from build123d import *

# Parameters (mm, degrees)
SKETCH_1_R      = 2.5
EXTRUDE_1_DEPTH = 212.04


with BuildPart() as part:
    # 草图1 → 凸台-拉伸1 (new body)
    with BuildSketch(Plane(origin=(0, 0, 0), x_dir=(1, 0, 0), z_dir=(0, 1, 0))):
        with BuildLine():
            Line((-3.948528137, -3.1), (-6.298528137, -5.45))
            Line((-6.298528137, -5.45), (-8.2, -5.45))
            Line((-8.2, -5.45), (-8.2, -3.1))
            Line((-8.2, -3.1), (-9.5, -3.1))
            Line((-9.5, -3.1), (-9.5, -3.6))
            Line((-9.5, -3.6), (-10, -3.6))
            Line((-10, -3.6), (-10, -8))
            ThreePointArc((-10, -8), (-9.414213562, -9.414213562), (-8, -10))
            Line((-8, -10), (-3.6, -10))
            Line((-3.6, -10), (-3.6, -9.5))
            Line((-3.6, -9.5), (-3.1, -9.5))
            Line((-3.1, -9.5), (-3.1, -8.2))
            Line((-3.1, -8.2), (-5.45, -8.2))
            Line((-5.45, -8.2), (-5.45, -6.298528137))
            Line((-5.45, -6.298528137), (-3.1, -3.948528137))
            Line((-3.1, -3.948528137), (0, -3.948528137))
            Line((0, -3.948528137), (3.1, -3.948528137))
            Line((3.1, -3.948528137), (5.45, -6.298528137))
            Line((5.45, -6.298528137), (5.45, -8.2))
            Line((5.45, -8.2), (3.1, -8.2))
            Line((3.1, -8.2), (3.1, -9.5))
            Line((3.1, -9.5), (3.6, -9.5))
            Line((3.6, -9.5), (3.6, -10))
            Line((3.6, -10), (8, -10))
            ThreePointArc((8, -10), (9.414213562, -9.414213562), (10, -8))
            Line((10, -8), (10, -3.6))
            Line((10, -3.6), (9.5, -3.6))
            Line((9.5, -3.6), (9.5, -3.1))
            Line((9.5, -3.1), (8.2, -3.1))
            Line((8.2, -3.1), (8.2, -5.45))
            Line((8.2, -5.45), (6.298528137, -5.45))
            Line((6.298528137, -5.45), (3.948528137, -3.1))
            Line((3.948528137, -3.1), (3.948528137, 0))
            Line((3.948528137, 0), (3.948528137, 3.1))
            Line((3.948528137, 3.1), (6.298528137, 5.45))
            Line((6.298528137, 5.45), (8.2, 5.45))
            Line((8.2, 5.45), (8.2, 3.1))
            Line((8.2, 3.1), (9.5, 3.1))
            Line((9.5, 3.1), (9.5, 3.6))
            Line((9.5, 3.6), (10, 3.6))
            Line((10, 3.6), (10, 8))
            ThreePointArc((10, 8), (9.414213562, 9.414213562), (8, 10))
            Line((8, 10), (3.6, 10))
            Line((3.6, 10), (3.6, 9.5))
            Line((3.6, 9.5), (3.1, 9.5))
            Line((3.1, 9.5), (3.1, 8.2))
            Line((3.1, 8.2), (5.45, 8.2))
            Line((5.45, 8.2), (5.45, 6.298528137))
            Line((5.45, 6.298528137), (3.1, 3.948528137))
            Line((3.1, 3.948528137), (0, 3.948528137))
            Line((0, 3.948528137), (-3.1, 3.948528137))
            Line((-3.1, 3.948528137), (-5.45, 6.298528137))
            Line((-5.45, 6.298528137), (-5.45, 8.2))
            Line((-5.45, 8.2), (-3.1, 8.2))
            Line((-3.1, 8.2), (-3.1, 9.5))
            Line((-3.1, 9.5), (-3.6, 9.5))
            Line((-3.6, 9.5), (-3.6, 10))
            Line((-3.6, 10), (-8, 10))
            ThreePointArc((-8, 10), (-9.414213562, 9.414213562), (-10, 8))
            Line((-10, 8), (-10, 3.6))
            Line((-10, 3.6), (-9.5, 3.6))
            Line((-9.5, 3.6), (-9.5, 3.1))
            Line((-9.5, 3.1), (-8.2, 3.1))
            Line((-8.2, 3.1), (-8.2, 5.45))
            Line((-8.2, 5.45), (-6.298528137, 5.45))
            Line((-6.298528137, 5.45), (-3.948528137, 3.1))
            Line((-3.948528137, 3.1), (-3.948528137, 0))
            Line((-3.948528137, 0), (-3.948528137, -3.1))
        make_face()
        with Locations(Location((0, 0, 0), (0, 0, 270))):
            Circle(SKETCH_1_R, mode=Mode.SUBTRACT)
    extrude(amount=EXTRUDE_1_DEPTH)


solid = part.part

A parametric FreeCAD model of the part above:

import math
import FreeCAD as App
import Part
import Sketcher

V = App.Vector
Q = App.Units.Quantity

doc = App.newDocument("Part")
body = doc.addObject("PartDesign::Body", "Body")

sketch1 = doc.addObject("Sketcher::SketchObject", "Sketch")
body.addObject(sketch1)
sketch1.AttachmentSupport = (doc.XZ_Plane, [""])
sketch1.MapMode = "FlatFace"
sketch1.addGeometry([
    Part.LineSegment(V(-3.948528, 3.1, 0), V(-6.298528, 5.45, 0)),
    Part.LineSegment(V(-6.298528, 5.45, 0), V(-8.2, 5.45, 0)),
    Part.LineSegment(V(-8.2, 5.45, 0), V(-8.2, 3.1, 0)),
    Part.LineSegment(V(-8.2, 3.1, 0), V(-9.5, 3.1, 0)),
    Part.LineSegment(V(-9.5, 3.1, 0), V(-9.5, 3.6, 0)),
    Part.LineSegment(V(-9.5, 3.6, 0), V(-10, 3.6, 0)),
    Part.LineSegment(V(-10, 3.6, 0), V(-10, 8, 0)),
    Part.ArcOfCircle(Part.Circle(V(-8, 8, 0), V(0, 0, 1), 2), math.radians(90), math.radians(180)),
    Part.LineSegment(V(-8, 10, 0), V(-3.6, 10, 0)),
    Part.LineSegment(V(-3.6, 10, 0), V(-3.6, 9.5, 0)),
    Part.LineSegment(V(-3.6, 9.5, 0), V(-3.1, 9.5, 0)),
    Part.LineSegment(V(-3.1, 9.5, 0), V(-3.1, 8.2, 0)),
    Part.LineSegment(V(-3.1, 8.2, 0), V(-5.45, 8.2, 0)),
    Part.LineSegment(V(-5.45, 8.2, 0), V(-5.45, 6.298528, 0)),
    Part.LineSegment(V(-5.45, 6.298528, 0), V(-3.1, 3.948528, 0)),
    Part.LineSegment(V(-3.1, 3.948528, 0), V(3.1, 3.948528, 0)),
    Part.LineSegment(V(3.1, 3.948528, 0), V(5.45, 6.298528, 0)),
    Part.LineSegment(V(5.45, 6.298528, 0), V(5.45, 8.2, 0)),
    Part.LineSegment(V(5.45, 8.2, 0), V(3.1, 8.2, 0)),
    Part.LineSegment(V(3.1, 8.2, 0), V(3.1, 9.5, 0)),
    Part.LineSegment(V(3.1, 9.5, 0), V(3.6, 9.5, 0)),
    Part.LineSegment(V(3.6, 9.5, 0), V(3.6, 10, 0)),
    Part.LineSegment(V(3.6, 10, 0), V(8, 10, 0)),
    Part.ArcOfCircle(Part.Circle(V(8, 8, 0), V(0, 0, 1), 2), math.radians(0), math.radians(90)),
    Part.LineSegment(V(10, 8, 0), V(10, 3.6, 0)),
    Part.LineSegment(V(10, 3.6, 0), V(9.5, 3.6, 0)),
    Part.LineSegment(V(9.5, 3.6, 0), V(9.5, 3.1, 0)),
    Part.LineSegment(V(9.5, 3.1, 0), V(8.2, 3.1, 0)),
    Part.LineSegment(V(8.2, 3.1, 0), V(8.2, 5.45, 0)),
    Part.LineSegment(V(8.2, 5.45, 0), V(6.298528, 5.45, 0)),
    Part.LineSegment(V(6.298528, 5.45, 0), V(3.948528, 3.1, 0)),
    Part.LineSegment(V(3.948528, 3.1, 0), V(3.948528, -3.1, 0)),
    Part.LineSegment(V(3.948528, -3.1, 0), V(6.298528, -5.45, 0)),
    Part.LineSegment(V(6.298528, -5.45, 0), V(8.2, -5.45, 0)),
    Part.LineSegment(V(8.2, -5.45, 0), V(8.2, -3.1, 0)),
    Part.LineSegment(V(8.2, -3.1, 0), V(9.5, -3.1, 0)),
    Part.LineSegment(V(9.5, -3.1, 0), V(9.5, -3.6, 0)),
    Part.LineSegment(V(9.5, -3.6, 0), V(10, -3.6, 0)),
    Part.LineSegment(V(10, -3.6, 0), V(10, -8, 0)),
    Part.ArcOfCircle(Part.Circle(V(8, -8, 0), V(0, 0, 1), 2), math.radians(-90), math.radians(0)),
    Part.LineSegment(V(8, -10, 0), V(3.6, -10, 0)),
    Part.LineSegment(V(3.6, -10, 0), V(3.6, -9.5, 0)),
    Part.LineSegment(V(3.6, -9.5, 0), V(3.1, -9.5, 0)),
    Part.LineSegment(V(3.1, -9.5, 0), V(3.1, -8.2, 0)),
    Part.LineSegment(V(3.1, -8.2, 0), V(5.45, -8.2, 0)),
    Part.LineSegment(V(5.45, -8.2, 0), V(5.45, -6.298528, 0)),
    Part.LineSegment(V(5.45, -6.298528, 0), V(3.1, -3.948528, 0)),
    Part.LineSegment(V(3.1, -3.948528, 0), V(-3.1, -3.948528, 0)),
    Part.LineSegment(V(-3.1, -3.948528, 0), V(-5.45, -6.298528, 0)),
    Part.LineSegment(V(-5.45, -6.298528, 0), V(-5.45, -8.2, 0)),
    Part.LineSegment(V(-5.45, -8.2, 0), V(-3.1, -8.2, 0)),
    Part.LineSegment(V(-3.1, -8.2, 0), V(-3.1, -9.5, 0)),
    Part.LineSegment(V(-3.1, -9.5, 0), V(-3.6, -9.5, 0)),
    Part.LineSegment(V(-3.6, -9.5, 0), V(-3.6, -10, 0)),
    Part.LineSegment(V(-3.6, -10, 0), V(-8, -10, 0)),
    Part.ArcOfCircle(Part.Circle(V(-8, -8, 0), V(0, 0, 1), 2), math.radians(-180), math.radians(-90)),
    Part.LineSegment(V(-10, -8, 0), V(-10, -3.6, 0)),
    Part.LineSegment(V(-10, -3.6, 0), V(-9.5, -3.6, 0)),
    Part.LineSegment(V(-9.5, -3.6, 0), V(-9.5, -3.1, 0)),
    Part.LineSegment(V(-9.5, -3.1, 0), V(-8.2, -3.1, 0)),
    Part.LineSegment(V(-8.2, -3.1, 0), V(-8.2, -5.45, 0)),
    Part.LineSegment(V(-8.2, -5.45, 0), V(-6.298528, -5.45, 0)),
    Part.LineSegment(V(-6.298528, -5.45, 0), V(-3.948528, -3.1, 0)),
    Part.LineSegment(V(-3.948528, -3.1, 0), V(-3.948528, 3.1, 0)),
    Part.Circle(V(0, 0, 0), V(0, 0, 1), 2.5),
], False)
sketch1.addConstraint([
    Sketcher.Constraint("Coincident", 0, 2, 1, 1),
    Sketcher.Constraint("Coincident", 1, 2, 2, 1),
    Sketcher.Constraint("Coincident", 2, 2, 3, 1),
    Sketcher.Constraint("Coincident", 3, 2, 4, 1),
    Sketcher.Constraint("Coincident", 4, 2, 5, 1),
    Sketcher.Constraint("Coincident", 5, 2, 6, 1),
    Sketcher.Constraint("Tangent", 6, 2, 7, 2),
    Sketcher.Constraint("Tangent", 7, 1, 8, 1),
    Sketcher.Constraint("Coincident", 8, 2, 9, 1),
    Sketcher.Constraint("Coincident", 9, 2, 10, 1),
    Sketcher.Constraint("Coincident", 10, 2, 11, 1),
    Sketcher.Constraint("Coincident", 11, 2, 12, 1),
    Sketcher.Constraint("Coincident", 12, 2, 13, 1),
    Sketcher.Constraint("Coincident", 13, 2, 14, 1),
    Sketcher.Constraint("Coincident", 14, 2, 15, 1),
    Sketcher.Constraint("Coincident", 15, 2, 16, 1),
    Sketcher.Constraint("Coincident", 16, 2, 17, 1),
    Sketcher.Constraint("Coincident", 17, 2, 18, 1),
    Sketcher.Constraint("Coincident", 18, 2, 19, 1),
    Sketcher.Constraint("Coincident", 19, 2, 20, 1),
    Sketcher.Constraint("Coincident", 20, 2, 21, 1),
    Sketcher.Constraint("Coincident", 21, 2, 22, 1),
    Sketcher.Constraint("Tangent", 22, 2, 23, 2),
    Sketcher.Constraint("Tangent", 23, 1, 24, 1),
    Sketcher.Constraint("Coincident", 24, 2, 25, 1),
    Sketcher.Constraint("Coincident", 25, 2, 26, 1),
    Sketcher.Constraint("Coincident", 26, 2, 27, 1),
    Sketcher.Constraint("Coincident", 27, 2, 28, 1),
    Sketcher.Constraint("Coincident", 28, 2, 29, 1),
    Sketcher.Constraint("Coincident", 29, 2, 30, 1),
    Sketcher.Constraint("Coincident", 30, 2, 31, 1),
    Sketcher.Constraint("Coincident", 31, 2, 32, 1),
    Sketcher.Constraint("Coincident", 32, 2, 33, 1),
    Sketcher.Constraint("Coincident", 33, 2, 34, 1),
    Sketcher.Constraint("Coincident", 34, 2, 35, 1),
    Sketcher.Constraint("Coincident", 35, 2, 36, 1),
    Sketcher.Constraint("Coincident", 36, 2, 37, 1),
    Sketcher.Constraint("Coincident", 37, 2, 38, 1),
    Sketcher.Constraint("Tangent", 38, 2, 39, 2),
    Sketcher.Constraint("Tangent", 39, 1, 40, 1),
    Sketcher.Constraint("Coincident", 40, 2, 41, 1),
    Sketcher.Constraint("Coincident", 41, 2, 42, 1),
    Sketcher.Constraint("Coincident", 42, 2, 43, 1),
    Sketcher.Constraint("Coincident", 43, 2, 44, 1),
    Sketcher.Constraint("Coincident", 44, 2, 45, 1),
    Sketcher.Constraint("Coincident", 45, 2, 46, 1),
    Sketcher.Constraint("Coincident", 46, 2, 47, 1),
    Sketcher.Constraint("Coincident", 47, 2, 48, 1),
    Sketcher.Constraint("Coincident", 48, 2, 49, 1),
    Sketcher.Constraint("Coincident", 49, 2, 50, 1),
    Sketcher.Constraint("Coincident", 50, 2, 51, 1),
    Sketcher.Constraint("Coincident", 51, 2, 52, 1),
    Sketcher.Constraint("Coincident", 52, 2, 53, 1),
    Sketcher.Constraint("Coincident", 53, 2, 54, 1),
    Sketcher.Constraint("Tangent", 54, 2, 55, 2),
    Sketcher.Constraint("Tangent", 55, 1, 56, 1),
    Sketcher.Constraint("Coincident", 56, 2, 57, 1),
    Sketcher.Constraint("Coincident", 57, 2, 58, 1),
    Sketcher.Constraint("Coincident", 58, 2, 59, 1),
    Sketcher.Constraint("Coincident", 59, 2, 60, 1),
    Sketcher.Constraint("Coincident", 60, 2, 61, 1),
    Sketcher.Constraint("Coincident", 61, 2, 62, 1),
    Sketcher.Constraint("Coincident", 62, 2, 63, 1),
    Sketcher.Constraint("Coincident", 63, 2, 0, 1),
    Sketcher.Constraint("Horizontal", 1),
    Sketcher.Constraint("Vertical", 2),
    Sketcher.Constraint("Horizontal", 3),
    Sketcher.Constraint("Vertical", 4),
    Sketcher.Constraint("Horizontal", 5),
    Sketcher.Constraint("Vertical", 6),
    Sketcher.Constraint("Horizontal", 8),
    Sketcher.Constraint("Vertical", 9),
    Sketcher.Constraint("Horizontal", 10),
    Sketcher.Constraint("Vertical", 11),
    Sketcher.Constraint("Horizontal", 12),
    Sketcher.Constraint("Vertical", 13),
    Sketcher.Constraint("Horizontal", 15),
    Sketcher.Constraint("Vertical", 17),
    Sketcher.Constraint("Horizontal", 18),
    Sketcher.Constraint("Vertical", 19),
    Sketcher.Constraint("Horizontal", 20),
    Sketcher.Constraint("Vertical", 21),
    Sketcher.Constraint("Horizontal", 22),
    Sketcher.Constraint("Vertical", 24),
    Sketcher.Constraint("Horizontal", 25),
    Sketcher.Constraint("Vertical", 26),
    Sketcher.Constraint("Horizontal", 27),
    Sketcher.Constraint("Vertical", 28),
    Sketcher.Constraint("Horizontal", 29),
    Sketcher.Constraint("Vertical", 31),
    Sketcher.Constraint("Horizontal", 33),
    Sketcher.Constraint("Vertical", 34),
    Sketcher.Constraint("Horizontal", 35),
    Sketcher.Constraint("Vertical", 36),
    Sketcher.Constraint("Horizontal", 37),
    Sketcher.Constraint("Vertical", 38),
    Sketcher.Constraint("Horizontal", 40),
    Sketcher.Constraint("Vertical", 41),
    Sketcher.Constraint("Horizontal", 42),
    Sketcher.Constraint("Vertical", 43),
    Sketcher.Constraint("Horizontal", 44),
    Sketcher.Constraint("Vertical", 45),
    Sketcher.Constraint("Horizontal", 47),
    Sketcher.Constraint("Vertical", 49),
    Sketcher.Constraint("Horizontal", 50),
    Sketcher.Constraint("Vertical", 51),
    Sketcher.Constraint("Horizontal", 52),
    Sketcher.Constraint("Vertical", 53),
    Sketcher.Constraint("Horizontal", 54),
    Sketcher.Constraint("Vertical", 56),
    Sketcher.Constraint("Horizontal", 57),
    Sketcher.Constraint("Vertical", 58),
    Sketcher.Constraint("Horizontal", 59),
    Sketcher.Constraint("Vertical", 60),
    Sketcher.Constraint("Horizontal", 61),
    Sketcher.Constraint("Vertical", 63),
    Sketcher.Constraint("Coincident", 64, 3, -1, 1),
    Sketcher.Constraint("Equal", 7, 23),
    Sketcher.Constraint("Equal", 23, 39),
    Sketcher.Constraint("Equal", 39, 55),
    Sketcher.Constraint("Symmetric", 7, 3, 39, 3, -1, 1),
    Sketcher.Constraint("Symmetric", 23, 3, 55, 3, -1, 1),
    Sketcher.Constraint("Symmetric", 0, 2, 32, 2, -1, 1),
    Sketcher.Constraint("Symmetric", 2, 2, 34, 2, -1, 1),
    Sketcher.Constraint("Symmetric", 4, 2, 36, 2, -1, 1),
    Sketcher.Constraint("Symmetric", 9, 2, 41, 2, -1, 1),
    Sketcher.Constraint("Symmetric", 11, 2, 43, 2, -1, 1),
    Sketcher.Constraint("Symmetric", 13, 2, 45, 2, -1, 1),
    Sketcher.Constraint("Symmetric", 14, 2, 46, 2, -1, 1),
    Sketcher.Constraint("Symmetric", 16, 2, 48, 2, -1, 1),
    Sketcher.Constraint("Symmetric", 18, 2, 50, 2, -1, 1),
    Sketcher.Constraint("Symmetric", 20, 2, 52, 2, -1, 1),
    Sketcher.Constraint("Symmetric", 25, 2, 57, 2, -1, 1),
    Sketcher.Constraint("Symmetric", 27, 2, 59, 2, -1, 1),
    Sketcher.Constraint("Symmetric", 29, 2, 61, 2, -1, 1),
    Sketcher.Constraint("Symmetric", 30, 2, 62, 2, -1, 1),
    Sketcher.Constraint("Symmetric", 7, 3, 23, 3, -2),
    Sketcher.Constraint("Symmetric", 13, 2, 16, 2, -2),
    Sketcher.Constraint("Symmetric", 11, 2, 18, 2, -2),
    Sketcher.Constraint("Symmetric", 9, 2, 20, 2, -2),
    Sketcher.Constraint("Symmetric", 4, 2, 25, 2, -2),
    Sketcher.Constraint("Symmetric", 2, 2, 27, 2, -2),
    Sketcher.Constraint("Symmetric", 0, 2, 29, 2, -2),
    Sketcher.Constraint("Parallel", 0, 14),
    Sketcher.Constraint("Perpendicular", 14, 16),
    Sketcher.Constraint("Parallel", 16, 30),
    Sketcher.Constraint("Perpendicular", 30, 32),
    Sketcher.Constraint("Perpendicular", 46, 48),
    Sketcher.Constraint("Horizontal", 27, 2, 30, 2),
    Sketcher.Constraint("Horizontal", 31, 2, 34, 2),
    Sketcher.Constraint("Vertical", 11, 2, 14, 2),
    Sketcher.Constraint("Equal", 5, 10),
    Sketcher.Constraint("Equal", 50, 2),
    Sketcher.Constraint("Equal", 57, 4),
    Sketcher.Constraint("Equal", 54, 6),
    Sketcher.Constraint("Equal", 4, 9),
    Sketcher.Constraint("Equal", 59, 11),
    Sketcher.Constraint("Equal", 61, 13),
    Sketcher.Constraint("Equal", 47, 31),
    Sketcher.Constraint("Diameter", 64, Q("5 mm")),
    Sketcher.Constraint("Radius", 7, Q("2 mm")),
    Sketcher.Constraint("DistanceX", 3, 2, 3, 1, Q("1.3 mm")),
    Sketcher.Constraint("DistanceX", 5, 2, 5, 1, Q("0.5 mm")),
    Sketcher.Constraint("DistanceX", 8, 1, 8, 2, Q("4.4 mm")),
    Sketcher.Constraint("DistanceX", 15, 1, 15, 2, Q("6.2 mm")),
    Sketcher.Constraint("DistanceX", 12, 2, 12, 1, Q("2.35 mm")),
    Sketcher.Constraint("DistanceX", 1, 2, 1, 1, Q("1.901472 mm")),
])
pad1 = doc.addObject("PartDesign::Pad", "Pad")
body.addObject(pad1)
pad1.Profile = sketch1
pad1.Length = 212.04
pad1.Reversed = True

doc.recompute()
